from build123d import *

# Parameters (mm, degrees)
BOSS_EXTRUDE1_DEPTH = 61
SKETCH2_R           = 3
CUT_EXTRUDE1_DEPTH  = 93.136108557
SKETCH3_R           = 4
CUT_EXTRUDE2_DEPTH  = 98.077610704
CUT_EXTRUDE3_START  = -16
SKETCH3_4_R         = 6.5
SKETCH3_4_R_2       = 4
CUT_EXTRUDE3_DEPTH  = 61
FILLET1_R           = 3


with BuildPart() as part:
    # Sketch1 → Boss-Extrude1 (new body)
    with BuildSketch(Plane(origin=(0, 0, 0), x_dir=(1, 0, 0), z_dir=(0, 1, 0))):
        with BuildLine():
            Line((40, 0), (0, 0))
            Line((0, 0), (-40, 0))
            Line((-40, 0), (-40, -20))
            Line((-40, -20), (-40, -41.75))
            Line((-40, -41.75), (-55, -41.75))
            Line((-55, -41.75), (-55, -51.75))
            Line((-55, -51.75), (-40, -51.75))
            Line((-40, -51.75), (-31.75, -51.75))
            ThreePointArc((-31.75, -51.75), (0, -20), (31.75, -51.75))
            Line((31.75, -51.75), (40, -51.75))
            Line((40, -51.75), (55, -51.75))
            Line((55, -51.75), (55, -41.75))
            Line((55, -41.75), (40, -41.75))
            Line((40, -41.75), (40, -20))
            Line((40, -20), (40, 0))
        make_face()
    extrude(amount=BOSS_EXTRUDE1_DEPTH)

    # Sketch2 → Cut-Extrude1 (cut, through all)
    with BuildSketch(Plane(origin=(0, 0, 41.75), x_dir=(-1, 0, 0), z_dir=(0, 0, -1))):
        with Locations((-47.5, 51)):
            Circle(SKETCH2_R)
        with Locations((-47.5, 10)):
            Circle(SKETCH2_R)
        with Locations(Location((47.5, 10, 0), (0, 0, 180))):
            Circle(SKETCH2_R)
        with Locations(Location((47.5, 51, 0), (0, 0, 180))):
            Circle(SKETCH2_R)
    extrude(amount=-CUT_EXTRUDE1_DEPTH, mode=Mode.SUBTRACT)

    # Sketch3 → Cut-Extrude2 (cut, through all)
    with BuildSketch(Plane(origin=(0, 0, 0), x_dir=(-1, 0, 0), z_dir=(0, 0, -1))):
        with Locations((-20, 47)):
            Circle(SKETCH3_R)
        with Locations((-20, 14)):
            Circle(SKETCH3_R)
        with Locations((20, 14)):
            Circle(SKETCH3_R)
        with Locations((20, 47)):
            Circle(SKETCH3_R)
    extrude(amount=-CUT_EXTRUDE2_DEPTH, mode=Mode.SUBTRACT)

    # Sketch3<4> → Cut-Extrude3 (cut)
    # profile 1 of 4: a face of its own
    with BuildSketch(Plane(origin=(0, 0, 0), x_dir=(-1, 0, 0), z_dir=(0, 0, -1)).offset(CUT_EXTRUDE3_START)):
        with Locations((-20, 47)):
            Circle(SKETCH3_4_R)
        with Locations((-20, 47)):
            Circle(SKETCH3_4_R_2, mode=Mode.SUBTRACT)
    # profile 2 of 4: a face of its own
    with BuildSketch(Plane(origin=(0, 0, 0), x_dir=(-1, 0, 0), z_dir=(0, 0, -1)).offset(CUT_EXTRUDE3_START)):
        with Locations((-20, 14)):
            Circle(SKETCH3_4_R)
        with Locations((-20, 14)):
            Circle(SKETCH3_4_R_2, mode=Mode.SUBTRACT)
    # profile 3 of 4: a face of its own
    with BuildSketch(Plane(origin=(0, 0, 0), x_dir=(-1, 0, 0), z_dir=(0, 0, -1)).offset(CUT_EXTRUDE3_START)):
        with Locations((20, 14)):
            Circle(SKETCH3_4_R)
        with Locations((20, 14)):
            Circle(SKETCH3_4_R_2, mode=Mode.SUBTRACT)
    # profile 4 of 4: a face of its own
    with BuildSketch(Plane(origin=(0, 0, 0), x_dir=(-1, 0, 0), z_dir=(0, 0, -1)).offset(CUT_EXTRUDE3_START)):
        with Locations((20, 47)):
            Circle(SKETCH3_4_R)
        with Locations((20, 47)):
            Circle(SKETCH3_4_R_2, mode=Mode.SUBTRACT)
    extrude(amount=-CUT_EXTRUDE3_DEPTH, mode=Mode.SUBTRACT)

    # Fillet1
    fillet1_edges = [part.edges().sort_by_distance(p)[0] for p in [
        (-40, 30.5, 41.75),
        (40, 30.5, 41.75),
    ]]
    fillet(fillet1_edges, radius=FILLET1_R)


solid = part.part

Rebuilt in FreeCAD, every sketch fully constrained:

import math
import FreeCAD as App
import Part
import Sketcher

V = App.Vector
Q = App.Units.Quantity


def edges_at(feature, points):
    """Names of the edges that pass closest to the given points."""
    edges = feature.Shape.Edges
    near = lambda p: min(range(len(edges)), key=lambda i: edges[i].distToShape(Part.Vertex(*p))[0])
    return sorted({f"Edge{near(p) + 1}" for p in points})

doc = App.newDocument("Part")
params = doc.addObject("Spreadsheet::Sheet", "Params")
for row, (alias, value) in enumerate([
    ("sketch1_width", "80 mm"),
    ("sketch1_width2", "15 mm"),
    ("sketch1_height", "10 mm"),
    ("sketch1_radius", "31.75 mm"),
    ("sketch1_height2", "41.75 mm"),
    ("pad1_length", "61 mm"),
    ("sketch2_diameter", "6 mm"),
    ("sketch3_diameter", "8 mm"),
    ("sketch4_diameter", "13 mm"),
    ("sketch4_diameter2", "8 mm"),
    ("pocket3_length", "61 mm"),
    ("fillet_radius", "3 mm"),
], start=1):
    params.set(f"A{row}", alias)
    params.set(f"B{row}", "=" + value)
    params.setAlias(f"B{row}", alias)

body = doc.addObject("PartDesign::Body", "Body")

sketch1 = body.newObject("Sketcher::SketchObject", "Sketch")
sketch1.AttachmentSupport = (doc.getObject("XZ_Plane"), [""])
sketch1.MapMode = "FlatFace"
sketch1.addGeometry(Part.LineSegment(V(40, 0, 0), V(-40, 0, 0)), False)
sketch1.addGeometry(Part.LineSegment(V(-40, 0, 0), V(-40, 41.75, 0)), False)
sketch1.addGeometry(Part.LineSegment(V(-40, 41.75, 0), V(-55, 41.75, 0)), False)
sketch1.addGeometry(Part.LineSegment(V(-55, 41.75, 0), V(-55, 51.75, 0)), False)
sketch1.addGeometry(Part.LineSegment(V(-55, 51.75, 0), V(-31.75, 51.75, 0)), False)
sketch1.addGeometry(Part.ArcOfCircle(Part.Circle(V(0, 51.75, 0), V(0, 0, 1), 31.75), math.radians(180), math.radians(360)), False)
sketch1.addGeometry(Part.LineSegment(V(31.75, 51.75, 0), V(55, 51.75, 0)), False)
sketch1.addGeometry(Part.LineSegment(V(55, 51.75, 0), V(55, 41.75, 0)), False)
sketch1.addGeometry(Part.LineSegment(V(55, 41.75, 0), V(40, 41.75, 0)), False)
sketch1.addGeometry(Part.LineSegment(V(40, 41.75, 0), V(40, 0, 0)), False)
sketch1.addConstraint(Sketcher.Constraint("Coincident", 0, 2, 1, 1))
sketch1.addConstraint(Sketcher.Constraint("Coincident", 1, 2, 2, 1))
sketch1.addConstraint(Sketcher.Constraint("Coincident", 2, 2, 3, 1))
sketch1.addConstraint(Sketcher.Constraint("Coincident", 3, 2, 4, 1))
sketch1.addConstraint(Sketcher.Constraint("Coincident", 4, 2, 5, 1))
sketch1.addConstraint(Sketcher.Constraint("Coincident", 5, 2, 6, 1))
sketch1.addConstraint(Sketcher.Constraint("Coincident", 6, 2, 7, 1))
sketch1.addConstraint(Sketcher.Constraint("Coincident", 7, 2, 8, 1))
sketch1.addConstraint(Sketcher.Constraint("Coincident", 8, 2, 9, 1))
sketch1.addConstraint(Sketcher.Constraint("Coincident", 9, 2, 0, 1))
sketch1.addConstraint(Sketcher.Constraint("Horizontal", 0))
sketch1.addConstraint(Sketcher.Constraint("Vertical", 1))
sketch1.addConstraint(Sketcher.Constraint("Horizontal", 2))
sketch1.addConstraint(Sketcher.Constraint("Vertical", 3))
sketch1.addConstraint(Sketcher.Constraint("Horizontal", 4))
sketch1.addConstraint(Sketcher.Constraint("Horizontal", 6))
sketch1.addConstraint(Sketcher.Constraint("Vertical", 7))
sketch1.addConstraint(Sketcher.Constraint("Horizontal", 8))
sketch1.addConstraint(Sketcher.Constraint("Vertical", 9))
sketch1.addConstraint(Sketcher.Constraint("Symmetric", 0, 2, 9, 2, -1, 1))
sketch1.addConstraint(Sketcher.Constraint("Symmetric", 4, 2, 5, 2, -2))
sketch1.addConstraint(Sketcher.Constraint("Symmetric", 2, 2, 7, 2, -2))
sketch1.addConstraint(Sketcher.Constraint("Horizontal", 5, 3, 3, 2))
sketch1.addConstraint(Sketcher.Constraint("DistanceX", 0, 2, 0, 1, Q("80 mm")))
sketch1.addConstraint(Sketcher.Constraint("DistanceX", 2, 2, 2, 1, Q("15 mm")))
sketch1.addConstraint(Sketcher.Constraint("DistanceY", 3, 1, 3, 2, Q("10 mm")))
sketch1.addConstraint(Sketcher.Constraint("Radius", 5, Q("31.75 mm")))
sketch1.addConstraint(Sketcher.Constraint("DistanceY", 1, 1, 1, 2, Q("41.75 mm")))
sketch1.setExpression("Constraints[23]", "Params.sketch1_width")
sketch1.setExpression("Constraints[24]", "Params.sketch1_width2")
sketch1.setExpression("Constraints[25]", "Params.sketch1_height")
sketch1.setExpression("Constraints[26]", "Params.sketch1_radius")
sketch1.setExpression("Constraints[27]", "Params.sketch1_height2")
pad1 = body.newObject("PartDesign::Pad", "Pad")
pad1.Profile = sketch1
pad1.setExpression("Length", "Params.pad1_length")
pad1.Reversed = True

sketch2 = body.newObject("Sketcher::SketchObject", "Sketch001")
sketch2.AttachmentSupport = (doc.getObject("XY_Plane"), [""])
sketch2.MapMode = "FlatFace"
sketch2.AttachmentOffset = App.Placement(V(0, 0, 41.75), App.Rotation())
sketch2.addGeometry(Part.Circle(V(47.5, 51, 0), V(0, 0, 1), 3), False)
sketch2.addGeometry(Part.Circle(V(47.5, 10, 0), V(0, 0, 1), 3), False)
sketch2.addGeometry(Part.Circle(V(-47.5, 10, 0), V(0, 0, 1), 3), False)
sketch2.addGeometry(Part.Circle(V(-47.5, 51, 0), V(0, 0, 1), 3), False)
sketch2.addConstraint(Sketcher.Constraint("Equal", 0, 1))
sketch2.addConstraint(Sketcher.Constraint("Equal", 1, 2))
sketch2.addConstraint(Sketcher.Constraint("Equal", 2, 3))
sketch2.addConstraint(Sketcher.Constraint("Symmetric", 1, 3, 2, 3, -2))
sketch2.addConstraint(Sketcher.Constraint("Symmetric", 0, 3, 3, 3, -2))
sketch2.addConstraint(Sketcher.Constraint("Vertical", 0, 3, 1, 3))
sketch2.addConstraint(Sketcher.Constraint("Diameter", 0, Q("6 mm")))
sketch2.addConstraint(Sketcher.Constraint("DistanceY", -1, 1, 0, 3, Q("51 mm")))
sketch2.addConstraint(Sketcher.Constraint("DistanceY", -1, 1, 1, 3, Q("10 mm")))
sketch2.addConstraint(Sketcher.Constraint("DistanceX", 2, 3, 1, 3, Q("95 mm")))
sketch2.setExpression("Constraints[6]", "Params.sketch2_diameter")
pocket1 = body.newObject("PartDesign::Pocket", "Pocket")
pocket1.Profile = sketch2
pocket1.Type = "ThroughAll"
pocket1.Reversed = True

sketch3 = body.newObject("Sketcher::SketchObject", "Sketch002")
sketch3.AttachmentSupport = (doc.getObject("XY_Plane"), [""])
sketch3.MapMode = "FlatFace"
sketch3.addGeometry(Part.Circle(V(20, 47, 0), V(0, 0, 1), 4), False)
sketch3.addGeometry(Part.Circle(V(20, 14, 0), V(0, 0, 1), 4), False)
sketch3.addGeometry(Part.Circle(V(-20, 14, 0), V(0, 0, 1), 4), False)
sketch3.addGeometry(Part.Circle(V(-20, 47, 0), V(0, 0, 1), 4), False)
sketch3.addConstraint(Sketcher.Constraint("Equal", 0, 1))
sketch3.addConstraint(Sketcher.Constraint("Equal", 1, 2))
sketch3.addConstraint(Sketcher.Constraint("Equal", 2, 3))
sketch3.addConstraint(Sketcher.Constraint("Symmetric", 1, 3, 2, 3, -2))
sketch3.addConstraint(Sketcher.Constraint("Symmetric", 0, 3, 3, 3, -2))
sketch3.addConstraint(Sketcher.Constraint("Vertical", 0, 3, 1, 3))
sketch3.addConstraint(Sketcher.Constraint("Diameter", 0, Q("8 mm")))
sketch3.addConstraint(Sketcher.Constraint("DistanceX", -1, 1, 0, 3, Q("20 mm")))
sketch3.addConstraint(Sketcher.Constraint("DistanceY", -1, 1, 0, 3, Q("47 mm")))
sketch3.addConstraint(Sketcher.Constraint("DistanceY", -1, 1, 1, 3, Q("14 mm")))
sketch3.setExpression("Constraints[6]", "Params.sketch3_diameter")
pocket2 = body.newObject("PartDesign::Pocket", "Pocket001")
pocket2.Profile = sketch3
pocket2.Type = "ThroughAll"
pocket2.Reversed = True

sketch4 = body.newObject("Sketcher::SketchObject", "Sketch003")
sketch4.AttachmentSupport = (doc.getObject("XY_Plane"), [""])
sketch4.MapMode = "FlatFace"
sketch4.AttachmentOffset = App.Placement(V(0, 0, 16), App.Rotation())
sketch4.addGeometry(Part.Circle(V(20, 47, 0), V(0, 0, 1), 6.5), False)
sketch4.addGeometry(Part.Circle(V(20, 47, 0), V(0, 0, 1), 4), False)
sketch4.addGeometry(Part.Circle(V(20, 14, 0), V(0, 0, 1), 6.5), False)
sketch4.addGeometry(Part.Circle(V(20, 14, 0), V(0, 0, 1), 4), False)
sketch4.addGeometry(Part.Circle(V(-20, 14, 0), V(0, 0, 1), 6.5), False)
sketch4.addGeometry(Part.Circle(V(-20, 14, 0), V(0, 0, 1), 4), False)
sketch4.addGeometry(Part.Circle(V(-20, 47, 0), V(0, 0, 1), 6.5), False)
sketch4.addGeometry(Part.Circle(V(-20, 47, 0), V(0, 0, 1), 4), False)
sketch4.addConstraint(Sketcher.Constraint("Coincident", 1, 3, 0, 3))
sketch4.addConstraint(Sketcher.Constraint("Coincident", 3, 3, 2, 3))
sketch4.addConstraint(Sketcher.Constraint("Coincident", 5, 3, 4, 3))
sketch4.addConstraint(Sketcher.Constraint("Coincident", 7, 3, 6, 3))
sketch4.addConstraint(Sketcher.Constraint("Equal", 0, 2))
sketch4.addConstraint(Sketcher.Constraint("Equal", 1, 3))
sketch4.addConstraint(Sketcher.Constraint("Equal", 2, 4))
sketch4.addConstraint(Sketcher.Constraint("Equal", 3, 5))
sketch4.addConstraint(Sketcher.Constraint("Equal", 4, 6))
sketch4.addConstraint(Sketcher.Constraint("Equal", 5, 7))
sketch4.addConstraint(Sketcher.Constraint("Symmetric", 2, 3, 4, 3, -2))
sketch4.addConstraint(Sketcher.Constraint("Symmetric", 0, 3, 6, 3, -2))
sketch4.addConstraint(Sketcher.Constraint("Vertical", 1, 3, 2, 3))
sketch4.addConstraint(Sketcher.Constraint("Diameter", 0, Q("13 mm")))
sketch4.addConstraint(Sketcher.Constraint("Diameter", 1, Q("8 mm")))
sketch4.addConstraint(Sketcher.Constraint("DistanceX", -1, 1, 0, 3, Q("20 mm")))
sketch4.addConstraint(Sketcher.Constraint("DistanceY", -1, 1, 0, 3, Q("47 mm")))
sketch4.addConstraint(Sketcher.Constraint("DistanceY", -1, 1, 2, 3, Q("14 mm")))
sketch4.setExpression("Constraints[13]", "Params.sketch4_diameter")
sketch4.setExpression("Constraints[14]", "Params.sketch4_diameter2")
pocket3 = body.newObject("PartDesign::Pocket", "Pocket002")
pocket3.Profile = sketch4
pocket3.setExpression("Length", "Params.pocket3_length")
pocket3.Reversed = True
doc.recompute()

fillet = body.newObject("PartDesign::Fillet", "Fillet")
fillet.Base = (pocket3, edges_at(pocket3, [(-40, 30.5, 41.75), (40, 30.5, 41.75)]))
fillet.setExpression("Radius", "Params.fillet_radius")

doc.recompute()
